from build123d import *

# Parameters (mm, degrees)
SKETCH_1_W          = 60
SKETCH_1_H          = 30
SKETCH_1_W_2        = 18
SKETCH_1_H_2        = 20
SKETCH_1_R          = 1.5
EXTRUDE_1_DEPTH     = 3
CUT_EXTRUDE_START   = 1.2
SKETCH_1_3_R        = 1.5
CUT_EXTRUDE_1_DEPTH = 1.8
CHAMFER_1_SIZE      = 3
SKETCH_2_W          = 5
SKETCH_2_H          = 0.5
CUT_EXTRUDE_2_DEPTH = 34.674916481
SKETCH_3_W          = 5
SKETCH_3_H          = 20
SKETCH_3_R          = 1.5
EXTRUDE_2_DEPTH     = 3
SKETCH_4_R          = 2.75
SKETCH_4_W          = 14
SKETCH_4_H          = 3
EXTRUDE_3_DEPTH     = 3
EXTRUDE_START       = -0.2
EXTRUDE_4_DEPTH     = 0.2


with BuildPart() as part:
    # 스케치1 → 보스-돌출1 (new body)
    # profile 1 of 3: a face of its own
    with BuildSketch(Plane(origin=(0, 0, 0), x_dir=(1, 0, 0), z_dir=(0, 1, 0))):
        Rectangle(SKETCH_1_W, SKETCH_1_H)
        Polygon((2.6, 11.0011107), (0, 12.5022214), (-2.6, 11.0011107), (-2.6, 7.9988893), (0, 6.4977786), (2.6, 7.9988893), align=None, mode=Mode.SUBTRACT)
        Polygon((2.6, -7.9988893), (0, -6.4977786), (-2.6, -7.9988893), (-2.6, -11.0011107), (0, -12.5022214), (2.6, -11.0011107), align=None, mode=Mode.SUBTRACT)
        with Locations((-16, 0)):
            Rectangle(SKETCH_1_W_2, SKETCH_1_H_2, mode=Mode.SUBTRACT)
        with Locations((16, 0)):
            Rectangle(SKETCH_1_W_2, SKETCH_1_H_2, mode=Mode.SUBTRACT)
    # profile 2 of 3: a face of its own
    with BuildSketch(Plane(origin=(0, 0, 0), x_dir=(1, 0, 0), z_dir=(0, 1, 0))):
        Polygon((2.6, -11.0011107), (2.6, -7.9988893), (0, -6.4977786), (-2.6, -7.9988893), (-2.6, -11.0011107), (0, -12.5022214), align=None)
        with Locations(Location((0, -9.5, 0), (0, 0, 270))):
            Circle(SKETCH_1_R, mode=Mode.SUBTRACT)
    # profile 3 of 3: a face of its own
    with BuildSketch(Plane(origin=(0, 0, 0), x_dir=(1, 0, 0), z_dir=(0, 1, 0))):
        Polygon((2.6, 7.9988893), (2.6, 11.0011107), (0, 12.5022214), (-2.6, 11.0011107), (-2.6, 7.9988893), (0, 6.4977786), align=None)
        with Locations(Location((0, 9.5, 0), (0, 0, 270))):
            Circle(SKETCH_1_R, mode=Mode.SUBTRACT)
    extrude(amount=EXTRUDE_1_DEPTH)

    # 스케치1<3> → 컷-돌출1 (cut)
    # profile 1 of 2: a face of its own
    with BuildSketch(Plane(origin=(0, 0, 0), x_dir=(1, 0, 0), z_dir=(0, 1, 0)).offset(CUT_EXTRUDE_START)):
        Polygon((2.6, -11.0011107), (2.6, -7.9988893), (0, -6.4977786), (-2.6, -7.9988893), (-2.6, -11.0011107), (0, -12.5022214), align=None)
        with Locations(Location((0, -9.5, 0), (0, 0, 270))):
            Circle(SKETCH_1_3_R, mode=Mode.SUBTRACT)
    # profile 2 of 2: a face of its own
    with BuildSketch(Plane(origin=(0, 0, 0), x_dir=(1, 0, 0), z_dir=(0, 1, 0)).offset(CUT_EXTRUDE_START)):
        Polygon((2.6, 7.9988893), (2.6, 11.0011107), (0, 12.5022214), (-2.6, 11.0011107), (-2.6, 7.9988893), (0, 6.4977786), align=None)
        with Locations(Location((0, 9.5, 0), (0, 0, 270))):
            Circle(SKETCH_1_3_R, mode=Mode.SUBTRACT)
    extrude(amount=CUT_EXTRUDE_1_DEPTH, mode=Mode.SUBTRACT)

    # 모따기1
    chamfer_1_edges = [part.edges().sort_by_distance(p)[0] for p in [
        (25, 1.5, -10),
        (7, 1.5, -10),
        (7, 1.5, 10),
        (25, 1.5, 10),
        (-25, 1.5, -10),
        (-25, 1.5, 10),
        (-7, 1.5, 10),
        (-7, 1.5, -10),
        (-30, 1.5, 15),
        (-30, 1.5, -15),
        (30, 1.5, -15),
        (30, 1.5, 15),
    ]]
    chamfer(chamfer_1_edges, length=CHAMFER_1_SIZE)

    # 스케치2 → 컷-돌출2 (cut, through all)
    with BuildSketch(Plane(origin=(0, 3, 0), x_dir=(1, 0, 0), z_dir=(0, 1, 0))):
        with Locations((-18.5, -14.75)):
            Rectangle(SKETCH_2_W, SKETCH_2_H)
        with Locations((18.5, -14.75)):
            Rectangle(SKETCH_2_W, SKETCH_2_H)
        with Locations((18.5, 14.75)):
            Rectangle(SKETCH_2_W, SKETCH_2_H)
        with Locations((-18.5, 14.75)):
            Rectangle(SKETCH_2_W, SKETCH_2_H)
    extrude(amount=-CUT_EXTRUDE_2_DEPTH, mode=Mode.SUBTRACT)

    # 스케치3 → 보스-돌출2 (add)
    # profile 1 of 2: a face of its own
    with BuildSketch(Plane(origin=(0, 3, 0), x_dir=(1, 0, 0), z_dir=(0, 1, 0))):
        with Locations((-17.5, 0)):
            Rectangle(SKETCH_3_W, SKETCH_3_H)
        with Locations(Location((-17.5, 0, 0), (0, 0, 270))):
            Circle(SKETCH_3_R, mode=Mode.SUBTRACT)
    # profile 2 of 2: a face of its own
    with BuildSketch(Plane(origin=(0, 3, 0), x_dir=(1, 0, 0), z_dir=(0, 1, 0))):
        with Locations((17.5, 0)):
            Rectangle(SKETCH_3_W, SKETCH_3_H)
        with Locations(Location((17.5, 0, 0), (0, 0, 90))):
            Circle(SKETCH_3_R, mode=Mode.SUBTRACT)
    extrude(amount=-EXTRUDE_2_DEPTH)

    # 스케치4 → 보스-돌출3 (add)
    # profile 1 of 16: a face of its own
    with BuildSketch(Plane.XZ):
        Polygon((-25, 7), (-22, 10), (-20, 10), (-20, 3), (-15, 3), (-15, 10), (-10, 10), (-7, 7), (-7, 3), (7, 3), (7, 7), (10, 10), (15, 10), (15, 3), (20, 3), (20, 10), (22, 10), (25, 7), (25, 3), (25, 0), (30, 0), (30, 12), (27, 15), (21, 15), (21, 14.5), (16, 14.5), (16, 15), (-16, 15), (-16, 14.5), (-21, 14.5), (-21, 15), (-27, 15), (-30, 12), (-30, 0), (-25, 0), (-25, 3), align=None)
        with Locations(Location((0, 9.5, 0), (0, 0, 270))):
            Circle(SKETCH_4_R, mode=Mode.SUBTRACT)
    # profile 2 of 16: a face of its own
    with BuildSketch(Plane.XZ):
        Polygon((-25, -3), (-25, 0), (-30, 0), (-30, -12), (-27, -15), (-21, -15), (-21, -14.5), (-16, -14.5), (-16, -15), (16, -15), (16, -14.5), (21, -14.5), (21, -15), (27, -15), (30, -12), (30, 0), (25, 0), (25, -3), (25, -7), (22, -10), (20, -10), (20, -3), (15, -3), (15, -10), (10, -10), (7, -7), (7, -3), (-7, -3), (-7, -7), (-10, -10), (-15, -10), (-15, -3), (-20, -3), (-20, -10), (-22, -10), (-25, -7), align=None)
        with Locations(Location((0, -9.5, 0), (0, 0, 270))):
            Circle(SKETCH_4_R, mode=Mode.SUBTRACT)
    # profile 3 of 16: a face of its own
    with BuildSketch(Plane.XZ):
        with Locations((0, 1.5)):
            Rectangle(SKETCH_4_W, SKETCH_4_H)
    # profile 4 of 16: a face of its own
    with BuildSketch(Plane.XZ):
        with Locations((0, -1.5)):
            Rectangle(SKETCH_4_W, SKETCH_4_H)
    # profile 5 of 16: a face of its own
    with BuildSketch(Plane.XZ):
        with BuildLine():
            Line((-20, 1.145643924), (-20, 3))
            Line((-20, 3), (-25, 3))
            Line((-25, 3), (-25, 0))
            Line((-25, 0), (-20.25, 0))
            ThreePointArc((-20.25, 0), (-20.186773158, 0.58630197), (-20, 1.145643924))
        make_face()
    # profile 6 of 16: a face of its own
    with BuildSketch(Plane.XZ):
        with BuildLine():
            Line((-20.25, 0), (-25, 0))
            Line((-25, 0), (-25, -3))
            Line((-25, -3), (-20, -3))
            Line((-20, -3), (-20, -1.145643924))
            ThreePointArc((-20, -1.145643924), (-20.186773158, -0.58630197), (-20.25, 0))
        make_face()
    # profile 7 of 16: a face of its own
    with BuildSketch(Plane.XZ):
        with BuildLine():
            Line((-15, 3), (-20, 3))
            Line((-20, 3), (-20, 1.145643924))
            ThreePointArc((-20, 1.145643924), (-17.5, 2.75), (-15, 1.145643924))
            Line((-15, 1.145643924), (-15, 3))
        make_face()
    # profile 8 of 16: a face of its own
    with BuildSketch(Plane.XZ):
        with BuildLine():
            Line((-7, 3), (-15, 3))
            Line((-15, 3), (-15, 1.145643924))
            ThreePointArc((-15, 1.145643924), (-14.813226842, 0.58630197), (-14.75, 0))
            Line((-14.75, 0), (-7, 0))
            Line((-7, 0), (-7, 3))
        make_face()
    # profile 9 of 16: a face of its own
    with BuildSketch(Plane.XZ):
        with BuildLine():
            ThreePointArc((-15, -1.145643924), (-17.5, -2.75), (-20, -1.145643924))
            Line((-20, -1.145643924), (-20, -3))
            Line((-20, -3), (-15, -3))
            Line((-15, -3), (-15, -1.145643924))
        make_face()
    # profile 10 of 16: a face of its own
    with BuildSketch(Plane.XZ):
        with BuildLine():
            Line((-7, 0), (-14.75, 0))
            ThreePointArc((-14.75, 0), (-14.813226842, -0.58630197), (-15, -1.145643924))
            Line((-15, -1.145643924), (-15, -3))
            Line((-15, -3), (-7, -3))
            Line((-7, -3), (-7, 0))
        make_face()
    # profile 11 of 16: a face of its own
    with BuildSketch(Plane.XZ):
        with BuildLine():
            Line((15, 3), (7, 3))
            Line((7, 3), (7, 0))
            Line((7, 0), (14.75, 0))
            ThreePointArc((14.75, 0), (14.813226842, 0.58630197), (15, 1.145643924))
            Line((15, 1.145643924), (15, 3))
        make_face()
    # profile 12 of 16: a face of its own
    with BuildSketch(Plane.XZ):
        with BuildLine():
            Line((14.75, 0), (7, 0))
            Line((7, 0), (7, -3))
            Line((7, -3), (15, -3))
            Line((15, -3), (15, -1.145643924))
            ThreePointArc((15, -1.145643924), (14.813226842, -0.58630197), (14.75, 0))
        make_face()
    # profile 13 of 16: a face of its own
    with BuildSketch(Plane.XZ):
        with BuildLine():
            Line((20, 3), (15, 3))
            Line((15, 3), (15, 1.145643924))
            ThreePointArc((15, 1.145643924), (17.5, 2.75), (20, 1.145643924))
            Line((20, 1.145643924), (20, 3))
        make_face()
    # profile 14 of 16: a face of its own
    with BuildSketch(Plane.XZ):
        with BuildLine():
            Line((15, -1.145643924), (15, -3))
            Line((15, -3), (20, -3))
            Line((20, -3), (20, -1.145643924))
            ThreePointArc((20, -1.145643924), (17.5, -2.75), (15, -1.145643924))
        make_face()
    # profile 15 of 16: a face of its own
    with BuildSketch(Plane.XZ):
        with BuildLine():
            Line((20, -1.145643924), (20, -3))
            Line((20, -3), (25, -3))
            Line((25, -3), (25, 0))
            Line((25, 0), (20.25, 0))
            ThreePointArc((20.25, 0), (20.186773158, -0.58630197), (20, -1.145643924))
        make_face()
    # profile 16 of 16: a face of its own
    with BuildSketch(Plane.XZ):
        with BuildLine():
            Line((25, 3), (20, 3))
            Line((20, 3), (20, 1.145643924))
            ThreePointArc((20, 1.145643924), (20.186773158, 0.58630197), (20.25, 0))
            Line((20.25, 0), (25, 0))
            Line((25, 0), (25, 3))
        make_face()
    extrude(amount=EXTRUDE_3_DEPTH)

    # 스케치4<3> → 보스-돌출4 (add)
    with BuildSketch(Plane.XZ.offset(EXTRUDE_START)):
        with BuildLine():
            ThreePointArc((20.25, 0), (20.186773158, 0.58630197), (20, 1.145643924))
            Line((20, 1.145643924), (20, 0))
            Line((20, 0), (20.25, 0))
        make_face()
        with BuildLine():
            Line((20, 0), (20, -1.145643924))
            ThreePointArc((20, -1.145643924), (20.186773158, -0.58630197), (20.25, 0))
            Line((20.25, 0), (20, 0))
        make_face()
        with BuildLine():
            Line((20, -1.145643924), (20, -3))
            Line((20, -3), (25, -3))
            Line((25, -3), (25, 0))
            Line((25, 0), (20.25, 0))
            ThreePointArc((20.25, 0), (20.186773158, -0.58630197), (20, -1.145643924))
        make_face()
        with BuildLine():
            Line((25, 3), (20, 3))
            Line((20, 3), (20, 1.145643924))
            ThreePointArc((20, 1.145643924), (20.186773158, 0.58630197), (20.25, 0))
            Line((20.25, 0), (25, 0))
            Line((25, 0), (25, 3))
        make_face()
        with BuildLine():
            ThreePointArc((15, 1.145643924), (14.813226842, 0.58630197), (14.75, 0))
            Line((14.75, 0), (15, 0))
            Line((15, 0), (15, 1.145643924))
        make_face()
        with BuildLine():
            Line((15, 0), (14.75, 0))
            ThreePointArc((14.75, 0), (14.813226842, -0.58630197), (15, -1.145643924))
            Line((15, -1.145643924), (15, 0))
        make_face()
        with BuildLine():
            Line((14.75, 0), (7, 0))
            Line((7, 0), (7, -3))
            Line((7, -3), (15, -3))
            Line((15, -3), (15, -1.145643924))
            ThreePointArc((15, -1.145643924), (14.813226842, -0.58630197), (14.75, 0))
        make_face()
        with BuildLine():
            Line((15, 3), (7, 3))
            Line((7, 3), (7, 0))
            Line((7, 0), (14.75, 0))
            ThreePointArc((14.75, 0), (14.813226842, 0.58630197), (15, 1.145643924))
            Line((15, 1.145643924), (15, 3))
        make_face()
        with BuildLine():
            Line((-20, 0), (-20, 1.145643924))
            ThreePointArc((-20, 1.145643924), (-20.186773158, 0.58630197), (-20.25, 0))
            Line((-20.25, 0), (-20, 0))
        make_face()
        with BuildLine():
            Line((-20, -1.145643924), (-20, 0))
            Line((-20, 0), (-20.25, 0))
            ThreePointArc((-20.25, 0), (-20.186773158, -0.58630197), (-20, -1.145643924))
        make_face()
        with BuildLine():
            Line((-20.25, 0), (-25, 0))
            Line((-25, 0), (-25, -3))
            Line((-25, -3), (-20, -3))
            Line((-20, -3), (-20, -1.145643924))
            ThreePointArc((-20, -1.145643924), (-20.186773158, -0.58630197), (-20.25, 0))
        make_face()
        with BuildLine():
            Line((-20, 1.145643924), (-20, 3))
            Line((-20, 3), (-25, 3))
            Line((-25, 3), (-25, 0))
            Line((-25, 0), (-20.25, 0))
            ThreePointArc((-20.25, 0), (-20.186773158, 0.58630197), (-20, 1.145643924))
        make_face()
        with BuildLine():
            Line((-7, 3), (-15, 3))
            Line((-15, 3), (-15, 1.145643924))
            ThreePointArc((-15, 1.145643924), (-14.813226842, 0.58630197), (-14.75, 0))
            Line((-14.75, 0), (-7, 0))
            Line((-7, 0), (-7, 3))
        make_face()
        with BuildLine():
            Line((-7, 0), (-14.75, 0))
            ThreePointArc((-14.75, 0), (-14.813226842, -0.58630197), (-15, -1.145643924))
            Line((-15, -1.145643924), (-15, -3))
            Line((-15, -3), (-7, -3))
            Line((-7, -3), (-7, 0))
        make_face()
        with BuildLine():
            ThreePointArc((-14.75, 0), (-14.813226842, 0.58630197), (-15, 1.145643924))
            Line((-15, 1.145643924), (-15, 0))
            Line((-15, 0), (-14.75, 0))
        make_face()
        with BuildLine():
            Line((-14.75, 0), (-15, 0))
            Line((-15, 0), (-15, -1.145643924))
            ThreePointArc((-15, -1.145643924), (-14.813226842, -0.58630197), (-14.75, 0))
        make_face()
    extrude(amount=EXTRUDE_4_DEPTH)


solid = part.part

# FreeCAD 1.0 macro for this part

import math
import FreeCAD as App
import Part
import Sketcher

V = App.Vector
Q = App.Units.Quantity


def edges_at(feature, points):
    """Names of the edges that pass closest to the given points."""
    edges = feature.Shape.Edges
    near = lambda p: min(range(len(edges)), key=lambda i: edges[i].distToShape(Part.Vertex(*p))[0])
    return sorted({f"Edge{near(p) + 1}" for p in points})

doc = App.newDocument("Part")
params = doc.addObject("Spreadsheet::Sheet", "Params")
for row, (alias, value) in enumerate([
    ("sketch1_diameter", "3 mm"),
    ("sketch1_width", "60 mm"),
    ("sketch1_width2", "18 mm"),
    ("sketch1_height", "30 mm"),
    ("sketch1_height2", "20 mm"),
    ("pad1_length", "3 mm"),
    ("sketch2_diameter", "3 mm"),
    ("pocket1_length", "1.8 mm"),
    ("chamfer_size", "3 mm"),
    ("sketch3_width", "5 mm"),
    ("sketch3_height", "0.5 mm"),
    ("sketch4_diameter", "3 mm"),
    ("sketch4_width", "5 mm"),
    ("sketch4_height", "20 mm"),
    ("pad2_length", "3 mm"),
    ("sketch5_diameter", "5.5 mm"),
    ("sketch5_width", "6 mm"),
    ("sketch5_width2", "5 mm"),
    ("sketch5_width3", "32 mm"),
    ("sketch5_width4", "2 mm"),
    ("pad3_length", "3 mm"),
    ("sketch6_width", "5 mm"),
    ("sketch6_width2", "8 mm"),
    ("sketch6_height", "6 mm"),
    ("pad4_length", "0.2 mm"),
], start=1):
    params.set(f"A{row}", alias)
    params.set(f"B{row}", "=" + value)
    params.setAlias(f"B{row}", alias)

body = doc.addObject("PartDesign::Body", "Body")

sketch1 = body.newObject("Sketcher::SketchObject", "Sketch")
sketch1.AttachmentSupport = (doc.getObject("XZ_Plane"), [""])
sketch1.MapMode = "FlatFace"
sketch1.addGeometry([
    Part.LineSegment(V(-30, -15, 0), V(-30, 15, 0)),
    Part.LineSegment(V(-30, 15, 0), V(30, 15, 0)),
    Part.LineSegment(V(30, 15, 0), V(30, -15, 0)),
    Part.LineSegment(V(30, -15, 0), V(-30, -15, 0)),
    Part.LineSegment(V(-7, 10, 0), V(-25, 10, 0)),
    Part.LineSegment(V(-25, 10, 0), V(-25, -10, 0)),
    Part.LineSegment(V(-25, -10, 0), V(-7, -10, 0)),
    Part.LineSegment(V(-7, -10, 0), V(-7, 10, 0)),
    Part.LineSegment(V(25, 10, 0), V(7, 10, 0)),
    Part.LineSegment(V(7, 10, 0), V(7, -10, 0)),
    Part.LineSegment(V(7, -10, 0), V(25, -10, 0)),
    Part.LineSegment(V(25, -10, 0), V(25, 10, 0)),
    Part.Circle(V(0, 9.5, 0), V(0, 0, 1), 1.5),
    Part.Circle(V(0, -9.5, 0), V(0, 0, 1), 1.5),
], False)
sketch1.addConstraint([
    Sketcher.Constraint("Coincident", 0, 2, 1, 1),
    Sketcher.Constraint("Coincident", 1, 2, 2, 1),
    Sketcher.Constraint("Coincident", 2, 2, 3, 1),
    Sketcher.Constraint("Coincident", 3, 2, 0, 1),
    Sketcher.Constraint("Coincident", 4, 2, 5, 1),
    Sketcher.Constraint("Coincident", 5, 2, 6, 1),
    Sketcher.Constraint("Coincident", 6, 2, 7, 1),
    Sketcher.Constraint("Coincident", 7, 2, 4, 1),
    Sketcher.Constraint("Coincident", 8, 2, 9, 1),
    Sketcher.Constraint("Coincident", 9, 2, 10, 1),
    Sketcher.Constraint("Coincident", 10, 2, 11, 1),
    Sketcher.Constraint("Coincident", 11, 2, 8, 1),
    Sketcher.Constraint("Vertical", 0),
    Sketcher.Constraint("Horizontal", 1),
    Sketcher.Constraint("Vertical", 2),
    Sketcher.Constraint("Horizontal", 3),
    Sketcher.Constraint("Horizontal", 4),
    Sketcher.Constraint("Vertical", 5),
    Sketcher.Constraint("Horizontal", 6),
    Sketcher.Constraint("Vertical", 7),
    Sketcher.Constraint("Horizontal", 8),
    Sketcher.Constraint("Vertical", 9),
    Sketcher.Constraint("Horizontal", 10),
    Sketcher.Constraint("Vertical", 11),
    Sketcher.Constraint("Equal", 12, 13),
    Sketcher.Constraint("Symmetric", 12, 3, 13, 3, -1, 1),
    Sketcher.Constraint("Symmetric", 0, 2, 2, 2, -1, 1),
    Sketcher.Constraint("Symmetric", 6, 2, 8, 2, -1, 1),
    Sketcher.Constraint("Symmetric", 4, 2, 10, 2, -1, 1),
    Sketcher.Constraint("PointOnObject", 12, 3, -2),
    Sketcher.Constraint("Horizontal", 7, 2, 8, 2),
    Sketcher.Constraint("Diameter", 12, Q("3 mm")),
    Sketcher.Constraint("DistanceX", 1, 1, 1, 2, Q("60 mm")),
    Sketcher.Constraint("DistanceX", 4, 2, 4, 1, Q("18 mm")),
    Sketcher.Constraint("DistanceY", 0, 1, 0, 2, Q("30 mm")),
    Sketcher.Constraint("DistanceY", 5, 2, 5, 1, Q("20 mm")),
    Sketcher.Constraint("DistanceX", 4, 2, -1, 1, Q("25 mm")),
    Sketcher.Constraint("DistanceY", 13, 3, 12, 3, Q("19 mm")),
])
sketch1.setExpression("Constraints[31]", "Params.sketch1_diameter")
sketch1.setExpression("Constraints[32]", "Params.sketch1_width")
sketch1.setExpression("Constraints[33]", "Params.sketch1_width2")
sketch1.setExpression("Constraints[34]", "Params.sketch1_height")
sketch1.setExpression("Constraints[35]", "Params.sketch1_height2")
pad1 = body.newObject("PartDesign::Pad", "Pad")
pad1.Profile = sketch1
pad1.setExpression("Length", "Params.pad1_length")
pad1.Reversed = True

sketch2 = body.newObject("Sketcher::SketchObject", "Sketch001")
sketch2.AttachmentSupport = (doc.getObject("XZ_Plane"), [""])
sketch2.MapMode = "FlatFace"
sketch2.AttachmentOffset = App.Placement(V(0, 0, -1.2), App.Rotation())
sketch2.addGeometry([
    Part.LineSegment(V(2.6, 11, 0), V(2.6, 8, 0)),
    Part.LineSegment(V(2.6, 8, 0), V(0, 6.5, 0)),
    Part.LineSegment(V(0, 6.5, 0), V(-2.6, 8, 0)),
    Part.LineSegment(V(-2.6, 8, 0), V(-2.6, 11, 0)),
    Part.LineSegment(V(-2.6, 11, 0), V(0, 12.5, 0)),
    Part.LineSegment(V(0, 12.5, 0), V(2.6, 11, 0)),
    Part.Circle(V(0, 9.5, 0), V(0, 0, 1), 1.5),
    Part.LineSegment(V(2.6, -8, 0), V(2.6, -11, 0)),
    Part.LineSegment(V(2.6, -11, 0), V(0, -12.5, 0)),
    Part.LineSegment(V(0, -12.5, 0), V(-2.6, -11, 0)),
    Part.LineSegment(V(-2.6, -11, 0), V(-2.6, -8, 0)),
    Part.LineSegment(V(-2.6, -8, 0), V(0, -6.5, 0)),
    Part.LineSegment(V(0, -6.5, 0), V(2.6, -8, 0)),
    Part.Circle(V(0, -9.5, 0), V(0, 0, 1), 1.5),
], False)
sketch2.addConstraint([
    Sketcher.Constraint("Coincident", 0, 2, 1, 1),
    Sketcher.Constraint("Coincident", 1, 2, 2, 1),
    Sketcher.Constraint("Coincident", 2, 2, 3, 1),
    Sketcher.Constraint("Coincident", 3, 2, 4, 1),
    Sketcher.Constraint("Coincident", 4, 2, 5, 1),
    Sketcher.Constraint("Coincident", 5, 2, 0, 1),
    Sketcher.Constraint("Coincident", 7, 2, 8, 1),
    Sketcher.Constraint("Coincident", 8, 2, 9, 1),
    Sketcher.Constraint("Coincident", 9, 2, 10, 1),
    Sketcher.Constraint("Coincident", 10, 2, 11, 1),
    Sketcher.Constraint("Coincident", 11, 2, 12, 1),
    Sketcher.Constraint("Coincident", 12, 2, 7, 1),
    Sketcher.Constraint("Vertical", 0),
    Sketcher.Constraint("Vertical", 3),
    Sketcher.Constraint("Vertical", 7),
    Sketcher.Constraint("Vertical", 10),
    Sketcher.Constraint("Equal", 6, 13),
    Sketcher.Constraint("Symmetric", 6, 3, 13, 3, -1, 1),
    Sketcher.Constraint("Symmetric", 3, 2, 7, 2, -1, 1),
    Sketcher.Constraint("Symmetric", 4, 2, 8, 2, -1, 1),
    Sketcher.Constraint("Symmetric", 5, 2, 9, 2, -1, 1),
    Sketcher.Constraint("Symmetric", 1, 2, 11, 2, -1, 1),
    Sketcher.Constraint("Symmetric", 0, 2, 2, 2, -2),
    Sketcher.Constraint("PointOnObject", 6, 3, -2),
    Sketcher.Constraint("PointOnObject", 1, 2, -2),
    Sketcher.Constraint("PointOnObject", 4, 2, -2),
    Sketcher.Constraint("Parallel", 1, 4),
    Sketcher.Constraint("Parallel", 2, 5),
    Sketcher.Constraint("Parallel", 8, 11),
    Sketcher.Constraint("Parallel", 9, 12),
    Sketcher.Constraint("Diameter", 6, Q("3 mm")),
    Sketcher.Constraint("Angle", 1, Q("-150 deg")),
    Sketcher.Constraint("DistanceY", 13, 3, 6, 3, Q("19 mm")),
    Sketcher.Constraint("DistanceY", 7, 2, 0, 2, Q("19 mm")),
    Sketcher.Constraint("DistanceX", -1, 1, 0, 2, Q("2.6 mm")),
    Sketcher.Constraint("DistanceY", 0, 2, 0, 1, Q("3.002221 mm")),
])
sketch2.setExpression("Constraints[30]", "Params.sketch2_diameter")
pocket1 = body.newObject("PartDesign::Pocket", "Pocket")
pocket1.Profile = sketch2
pocket1.setExpression("Length", "Params.pocket1_length")
doc.recompute()

chamfer = body.newObject("PartDesign::Chamfer", "Chamfer")
chamfer.Base = (pocket1, edges_at(pocket1, [
    (25, 1.5, -10),
    (7, 1.5, -10),
    (7, 1.5, 10),
    (25, 1.5, 10),
    (-25, 1.5, -10),
    (-25, 1.5, 10),
    (-7, 1.5, 10),
    (-7, 1.5, -10),
    (-30, 1.5, 15),
    (-30, 1.5, -15),
    (30, 1.5, -15),
    (30, 1.5, 15),
]))
chamfer.setExpression("Size", "Params.chamfer_size")

sketch3 = body.newObject("Sketcher::SketchObject", "Sketch002")
sketch3.AttachmentSupport = (doc.getObject("XZ_Plane"), [""])
sketch3.MapMode = "FlatFace"
sketch3.AttachmentOffset = App.Placement(V(0, 0, -3), App.Rotation())
sketch3.addGeometry([
    Part.LineSegment(V(-21, 14.5, 0), V(-21, 15, 0)),
    Part.LineSegment(V(-21, 15, 0), V(-16, 15, 0)),
    Part.LineSegment(V(-16, 15, 0), V(-16, 14.5, 0)),
    Part.LineSegment(V(-16, 14.5, 0), V(-21, 14.5, 0)),
    Part.LineSegment(V(16, 14.5, 0), V(16, 15, 0)),
    Part.LineSegment(V(16, 15, 0), V(21, 15, 0)),
    Part.LineSegment(V(21, 15, 0), V(21, 14.5, 0)),
    Part.LineSegment(V(21, 14.5, 0), V(16, 14.5, 0)),
    Part.LineSegment(V(16, -15, 0), V(16, -14.5, 0)),
    Part.LineSegment(V(16, -14.5, 0), V(21, -14.5, 0)),
    Part.LineSegment(V(21, -14.5, 0), V(21, -15, 0)),
    Part.LineSegment(V(21, -15, 0), V(16, -15, 0)),
    Part.LineSegment(V(-21, -15, 0), V(-21, -14.5, 0)),
    Part.LineSegment(V(-21, -14.5, 0), V(-16, -14.5, 0)),
    Part.LineSegment(V(-16, -14.5, 0), V(-16, -15, 0)),
    Part.LineSegment(V(-16, -15, 0), V(-21, -15, 0)),
], False)
sketch3.addConstraint([
    Sketcher.Constraint("Coincident", 0, 2, 1, 1),
    Sketcher.Constraint("Coincident", 1, 2, 2, 1),
    Sketcher.Constraint("Coincident", 2, 2, 3, 1),
    Sketcher.Constraint("Coincident", 3, 2, 0, 1),
    Sketcher.Constraint("Coincident", 4, 2, 5, 1),
    Sketcher.Constraint("Coincident", 5, 2, 6, 1),
    Sketcher.Constraint("Coincident", 6, 2, 7, 1),
    Sketcher.Constraint("Coincident", 7, 2, 4, 1),
    Sketcher.Constraint("Coincident", 8, 2, 9, 1),
    Sketcher.Constraint("Coincident", 9, 2, 10, 1),
    Sketcher.Constraint("Coincident", 10, 2, 11, 1),
    Sketcher.Constraint("Coincident", 11, 2, 8, 1),
    Sketcher.Constraint("Coincident", 12, 2, 13, 1),
    Sketcher.Constraint("Coincident", 13, 2, 14, 1),
    Sketcher.Constraint("Coincident", 14, 2, 15, 1),
    Sketcher.Constraint("Coincident", 15, 2, 12, 1),
    Sketcher.Constraint("Vertical", 0),
    Sketcher.Constraint("Horizontal", 1),
    Sketcher.Constraint("Vertical", 2),
    Sketcher.Constraint("Horizontal", 3),
    Sketcher.Constraint("Vertical", 4),
    Sketcher.Constraint("Horizontal", 5),
    Sketcher.Constraint("Vertical", 6),
    Sketcher.Constraint("Horizontal", 7),
    Sketcher.Constraint("Vertical", 8),
    Sketcher.Constraint("Horizontal", 9),
    Sketcher.Constraint("Vertical", 10),
    Sketcher.Constraint("Horizontal", 11),
    Sketcher.Constraint("Vertical", 12),
    Sketcher.Constraint("Horizontal", 13),
    Sketcher.Constraint("Vertical", 14),
    Sketcher.Constraint("Horizontal", 15),
    Sketcher.Constraint("Symmetric", 2, 2, 8, 2, -1, 1),
    Sketcher.Constraint("Symmetric", 0, 2, 10, 2, -1, 1),
    Sketcher.Constraint("Symmetric", 6, 2, 12, 2, -1, 1),
    Sketcher.Constraint("Symmetric", 4, 2, 14, 2, -1, 1),
    Sketcher.Constraint("Symmetric", 1, 2, 4, 2, -2),
    Sketcher.Constraint("Symmetric", 3, 2, 6, 2, -2),
    Sketcher.Constraint("DistanceX", 1, 1, 1, 2, Q("5 mm")),
    Sketcher.Constraint("DistanceY", 0, 1, 0, 2, Q("0.5 mm")),
    Sketcher.Constraint("DistanceX", 0, 2, -1, 1, Q("21 mm")),
    Sketcher.Constraint("DistanceY", -1, 1, 0, 2, Q("15 mm")),
])
sketch3.setExpression("Constraints[38]", "Params.sketch3_width")
sketch3.setExpression("Constraints[39]", "Params.sketch3_height")
pocket2 = body.newObject("PartDesign::Pocket", "Pocket001")
pocket2.Profile = sketch3
pocket2.Type = "ThroughAll"
pocket2.Reversed = True

sketch4 = body.newObject("Sketcher::SketchObject", "Sketch003")
sketch4.AttachmentSupport = (doc.getObject("XZ_Plane"), [""])
sketch4.MapMode = "FlatFace"
sketch4.AttachmentOffset = App.Placement(V(0, 0, -3), App.Rotation())
sketch4.addGeometry([
    Part.LineSegment(V(-20, -10, 0), V(-20, 10, 0)),
    Part.LineSegment(V(-20, 10, 0), V(-15, 10, 0)),
    Part.LineSegment(V(-15, 10, 0), V(-15, -10, 0)),
    Part.LineSegment(V(-15, -10, 0), V(-20, -10, 0)),
    Part.Circle(V(-17.5, 0, 0), V(0, 0, 1), 1.5),
    Part.LineSegment(V(15, -10, 0), V(15, 10, 0)),
    Part.LineSegment(V(15, 10, 0), V(20, 10, 0)),
    Part.LineSegment(V(20, 10, 0), V(20, -10, 0)),
    Part.LineSegment(V(20, -10, 0), V(15, -10, 0)),
    Part.Circle(V(17.5, 0, 0), V(0, 0, 1), 1.5),
], False)
sketch4.addConstraint([
    Sketcher.Constraint("Coincident", 0, 2, 1, 1),
    Sketcher.Constraint("Coincident", 1, 2, 2, 1),
    Sketcher.Constraint("Coincident", 2, 2, 3, 1),
    Sketcher.Constraint("Coincident", 3, 2, 0, 1),
    Sketcher.Constraint("Coincident", 5, 2, 6, 1),
    Sketcher.Constraint("Coincident", 6, 2, 7, 1),
    Sketcher.Constraint("Coincident", 7, 2, 8, 1),
    Sketcher.Constraint("Coincident", 8, 2, 5, 1),
    Sketcher.Constraint("Vertical", 0),
    Sketcher.Constraint("Horizontal", 1),
    Sketcher.Constraint("Vertical", 2),
    Sketcher.Constraint("Horizontal", 3),
    Sketcher.Constraint("Vertical", 5),
    Sketcher.Constraint("Horizontal", 6),
    Sketcher.Constraint("Vertical", 7),
    Sketcher.Constraint("Horizontal", 8),
    Sketcher.Constraint("Equal", 4, 9),
    Sketcher.Constraint("Symmetric", 4, 3, 9, 3, -1, 1),
    Sketcher.Constraint("Symmetric", 2, 2, 5, 2, -1, 1),
    Sketcher.Constraint("Symmetric", 0, 2, 7, 2, -1, 1),
    Sketcher.Constraint("PointOnObject", 4, 3, -1),
    Sketcher.Constraint("Horizontal", 1, 2, 5, 2),
    Sketcher.Constraint("Diameter", 4, Q("3 mm")),
    Sketcher.Constraint("DistanceX", 1, 1, 1, 2, Q("5 mm")),
    Sketcher.Constraint("DistanceY", 0, 1, 0, 2, Q("20 mm")),
    Sketcher.Constraint("DistanceX", 0, 2, -1, 1, Q("20 mm")),
    Sketcher.Constraint("DistanceX", 4, 3, 9, 3, Q("35 mm")),
])
sketch4.setExpression("Constraints[22]", "Params.sketch4_diameter")
sketch4.setExpression("Constraints[23]", "Params.sketch4_width")
sketch4.setExpression("Constraints[24]", "Params.sketch4_height")
pad2 = body.newObject("PartDesign::Pad", "Pad001")
pad2.Profile = sketch4
pad2.setExpression("Length", "Params.pad2_length")

sketch5 = body.newObject("Sketcher::SketchObject", "Sketch004")
sketch5.AttachmentSupport = (doc.getObject("XZ_Plane"), [""])
sketch5.MapMode = "FlatFace"
sketch5.addGeometry([
    Part.LineSegment(V(-30, 12, 0), V(-30, -12, 0)),
    Part.LineSegment(V(-30, -12, 0), V(-27, -15, 0)),
    Part.LineSegment(V(-27, -15, 0), V(-21, -15, 0)),
    Part.LineSegment(V(-21, -15, 0), V(-21, -14.5, 0)),
    Part.LineSegment(V(-21, -14.5, 0), V(-16, -14.5, 0)),
    Part.LineSegment(V(-16, -14.5, 0), V(-16, -15, 0)),
    Part.LineSegment(V(-16, -15, 0), V(16, -15, 0)),
    Part.LineSegment(V(16, -15, 0), V(16, -14.5, 0)),
    Part.LineSegment(V(16, -14.5, 0), V(21, -14.5, 0)),
    Part.LineSegment(V(21, -14.5, 0), V(21, -15, 0)),
    Part.LineSegment(V(21, -15, 0), V(27, -15, 0)),
    Part.LineSegment(V(27, -15, 0), V(30, -12, 0)),
    Part.LineSegment(V(30, -12, 0), V(30, 12, 0)),
    Part.LineSegment(V(30, 12, 0), V(27, 15, 0)),
    Part.LineSegment(V(27, 15, 0), V(21, 15, 0)),
    Part.LineSegment(V(21, 15, 0), V(21, 14.5, 0)),
    Part.LineSegment(V(21, 14.5, 0), V(16, 14.5, 0)),
    Part.LineSegment(V(16, 14.5, 0), V(16, 15, 0)),
    Part.LineSegment(V(16, 15, 0), V(-16, 15, 0)),
    Part.LineSegment(V(-16, 15, 0), V(-16, 14.5, 0)),
    Part.LineSegment(V(-16, 14.5, 0), V(-21, 14.5, 0)),
    Part.LineSegment(V(-21, 14.5, 0), V(-21, 15, 0)),
    Part.LineSegment(V(-21, 15, 0), V(-27, 15, 0)),
    Part.LineSegment(V(-27, 15, 0), V(-30, 12, 0)),
    Part.LineSegment(V(-25, 7, 0), V(-22, 10, 0)),
    Part.LineSegment(V(-22, 10, 0), V(-20, 10, 0)),
    Part.LineSegment(V(-20, 10, 0), V(-20, 3, 0)),
    Part.LineSegment(V(-20, 3, 0), V(-25, 3, 0)),
    Part.LineSegment(V(-25, 3, 0), V(-25, 7, 0)),
    Part.LineSegment(V(-15, 3, 0), V(-15, 10, 0)),
    Part.LineSegment(V(-15, 10, 0), V(-10, 10, 0)),
    Part.LineSegment(V(-10, 10, 0), V(-7, 7, 0)),
    Part.LineSegment(V(-7, 7, 0), V(-7, 3, 0)),
    Part.LineSegment(V(-7, 3, 0), V(-15, 3, 0)),
    Part.LineSegment(V(7, 3, 0), V(7, 7, 0)),
    Part.LineSegment(V(7, 7, 0), V(10, 10, 0)),
    Part.LineSegment(V(10, 10, 0), V(15, 10, 0)),
    Part.LineSegment(V(15, 10, 0), V(15, 3, 0)),
    Part.LineSegment(V(15, 3, 0), V(7, 3, 0)),
    Part.LineSegment(V(20, 3, 0), V(20, 10, 0)),
    Part.LineSegment(V(20, 10, 0), V(22, 10, 0)),
    Part.LineSegment(V(22, 10, 0), V(25, 7, 0)),
    Part.LineSegment(V(25, 7, 0), V(25, 3, 0)),
    Part.LineSegment(V(25, 3, 0), V(20, 3, 0)),
    Part.Circle(V(0, 9.5, 0), V(0, 0, 1), 2.8),
    Part.ArcOfCircle(Part.Circle(V(-17.5, 0, 0), V(0, 0, 1), 2.7), math.radians(155), math.radians(180)),
    Part.ArcOfCircle(Part.Circle(V(-17.5, 0, 0), V(0, 0, 1), 2.8), math.radians(25), math.radians(155)),
    Part.ArcOfCircle(Part.Circle(V(-17.5, 0, 0), V(0, 0, 1), 2.7), math.radians(0), math.radians(25)),
    Part.ArcOfCircle(Part.Circle(V(-17.5, 0, 0), V(0, 0, 1), 2.7), math.radians(-25), math.radians(0)),
    Part.ArcOfCircle(Part.Circle(V(-17.5, 0, 0), V(0, 0, 1), 2.8), math.radians(-155), math.radians(-25)),
    Part.ArcOfCircle(Part.Circle(V(-17.5, 0, 0), V(0, 0, 1), 2.7), math.radians(180), math.radians(205)),
    Part.Circle(V(0, -9.5, 0), V(0, 0, 1), 2.8),
    Part.LineSegment(V(-25, -7, 0), V(-25, -3, 0)),
    Part.LineSegment(V(-25, -3, 0), V(-20, -3, 0)),
    Part.LineSegment(V(-20, -3, 0), V(-20, -10, 0)),
    Part.LineSegment(V(-20, -10, 0), V(-22, -10, 0)),
    Part.LineSegment(V(-22, -10, 0), V(-25, -7, 0)),
    Part.LineSegment(V(-15, -10, 0), V(-15, -3, 0)),
    Part.LineSegment(V(-15, -3, 0), V(-7, -3, 0)),
    Part.LineSegment(V(-7, -3, 0), V(-7, -7, 0)),
    Part.LineSegment(V(-7, -7, 0), V(-10, -10, 0)),
    Part.LineSegment(V(-10, -10, 0), V(-15, -10, 0)),
    Part.LineSegment(V(7, -7, 0), V(7, -3, 0)),
    Part.LineSegment(V(7, -3, 0), V(15, -3, 0)),
    Part.LineSegment(V(15, -3, 0), V(15, -10, 0)),
    Part.LineSegment(V(15, -10, 0), V(10, -10, 0)),
    Part.LineSegment(V(10, -10, 0), V(7, -7, 0)),
    Part.LineSegment(V(22, -10, 0), V(20, -10, 0)),
    Part.LineSegment(V(20, -10, 0), V(20, -3, 0)),
    Part.LineSegment(V(20, -3, 0), V(25, -3, 0)),
    Part.LineSegment(V(25, -3, 0), V(25, -7, 0)),
    Part.LineSegment(V(25, -7, 0), V(22, -10, 0)),
    Part.ArcOfCircle(Part.Circle(V(17.5, 0, 0), V(0, 0, 1), 2.8), math.radians(25), math.radians(155)),
    Part.ArcOfCircle(Part.Circle(V(17.5, 0, 0), V(0, 0, 1), 2.7), math.radians(0), math.radians(25)),
    Part.ArcOfCircle(Part.Circle(V(17.5, 0, 0), V(0, 0, 1), 2.7), math.radians(-25), math.radians(0)),
    Part.ArcOfCircle(Part.Circle(V(17.5, 0, 0), V(0, 0, 1), 2.8), math.radians(-155), math.radians(-25)),
    Part.ArcOfCircle(Part.Circle(V(17.5, 0, 0), V(0, 0, 1), 2.7), math.radians(180), math.radians(205)),
    Part.ArcOfCircle(Part.Circle(V(17.5, 0, 0), V(0, 0, 1), 2.7), math.radians(155), math.radians(180)),
], False)
sketch5.addConstraint([
    Sketcher.Constraint("Coincident", 0, 2, 1, 1),
    Sketcher.Constraint("Coincident", 1, 2, 2, 1),
    Sketcher.Constraint("Coincident", 2, 2, 3, 1),
    Sketcher.Constraint("Coincident", 3, 2, 4, 1),
    Sketcher.Constraint("Coincident", 4, 2, 5, 1),
    Sketcher.Constraint("Coincident", 5, 2, 6, 1),
    Sketcher.Constraint("Coincident", 6, 2, 7, 1),
    Sketcher.Constraint("Coincident", 7, 2, 8, 1),
    Sketcher.Constraint("Coincident", 8, 2, 9, 1),
    Sketcher.Constraint("Coincident", 9, 2, 10, 1),
    Sketcher.Constraint("Coincident", 10, 2, 11, 1),
    Sketcher.Constraint("Coincident", 11, 2, 12, 1),
    Sketcher.Constraint("Coincident", 12, 2, 13, 1),
    Sketcher.Constraint("Coincident", 13, 2, 14, 1),
    Sketcher.Constraint("Coincident", 14, 2, 15, 1),
    Sketcher.Constraint("Coincident", 15, 2, 16, 1),
    Sketcher.Constraint("Coincident", 16, 2, 17, 1),
    Sketcher.Constraint("Coincident", 17, 2, 18, 1),
    Sketcher.Constraint("Coincident", 18, 2, 19, 1),
    Sketcher.Constraint("Coincident", 19, 2, 20, 1),
    Sketcher.Constraint("Coincident", 20, 2, 21, 1),
    Sketcher.Constraint("Coincident", 21, 2, 22, 1),
    Sketcher.Constraint("Coincident", 22, 2, 23, 1),
    Sketcher.Constraint("Coincident", 23, 2, 0, 1),
    Sketcher.Constraint("Coincident", 24, 2, 25, 1),
    Sketcher.Constraint("Coincident", 25, 2, 26, 1),
    Sketcher.Constraint("Coincident", 26, 2, 27, 1),
    Sketcher.Constraint("Coincident", 27, 2, 28, 1),
    Sketcher.Constraint("Coincident", 28, 2, 24, 1),
    Sketcher.Constraint("Coincident", 29, 2, 30, 1),
    Sketcher.Constraint("Coincident", 30, 2, 31, 1),
    Sketcher.Constraint("Coincident", 31, 2, 32, 1),
    Sketcher.Constraint("Coincident", 32, 2, 33, 1),
    Sketcher.Constraint("Coincident", 33, 2, 29, 1),
    Sketcher.Constraint("Coincident", 34, 2, 35, 1),
    Sketcher.Constraint("Coincident", 35, 2, 36, 1),
    Sketcher.Constraint("Coincident", 36, 2, 37, 1),
    Sketcher.Constraint("Coincident", 37, 2, 38, 1),
    Sketcher.Constraint("Coincident", 38, 2, 34, 1),
    Sketcher.Constraint("Coincident", 39, 2, 40, 1),
    Sketcher.Constraint("Coincident", 40, 2, 41, 1),
    Sketcher.Constraint("Coincident", 41, 2, 42, 1),
    Sketcher.Constraint("Coincident", 42, 2, 43, 1),
    Sketcher.Constraint("Coincident", 43, 2, 39, 1),
    Sketcher.Constraint("Tangent", 45, 1, 46, 2),
    Sketcher.Constraint("Tangent", 46, 1, 47, 2),
    Sketcher.Constraint("Tangent", 47, 1, 48, 2),
    Sketcher.Constraint("Tangent", 48, 1, 49, 2),
    Sketcher.Constraint("Tangent", 49, 1, 50, 2),
    Sketcher.Constraint("Tangent", 50, 1, 45, 2),
    Sketcher.Constraint("Coincident", 52, 2, 53, 1),
    Sketcher.Constraint("Coincident", 53, 2, 54, 1),
    Sketcher.Constraint("Coincident", 54, 2, 55, 1),
    Sketcher.Constraint("Coincident", 55, 2, 56, 1),
    Sketcher.Constraint("Coincident", 56, 2, 52, 1),
    Sketcher.Constraint("Coincident", 57, 2, 58, 1),
    Sketcher.Constraint("Coincident", 58, 2, 59, 1),
    Sketcher.Constraint("Coincident", 59, 2, 60, 1),
    Sketcher.Constraint("Coincident", 60, 2, 61, 1),
    Sketcher.Constraint("Coincident", 61, 2, 57, 1),
    Sketcher.Constraint("Coincident", 62, 2, 63, 1),
    Sketcher.Constraint("Coincident", 63, 2, 64, 1),
    Sketcher.Constraint("Coincident", 64, 2, 65, 1),
    Sketcher.Constraint("Coincident", 65, 2, 66, 1),
    Sketcher.Constraint("Coincident", 66, 2, 62, 1),
    Sketcher.Constraint("Coincident", 67, 2, 68, 1),
    Sketcher.Constraint("Coincident", 68, 2, 69, 1),
    Sketcher.Constraint("Coincident", 69, 2, 70, 1),
    Sketcher.Constraint("Coincident", 70, 2, 71, 1),
    Sketcher.Constraint("Coincident", 71, 2, 67, 1),
    Sketcher.Constraint("Tangent", 72, 1, 73, 2),
    Sketcher.Constraint("Tangent", 73, 1, 74, 2),
    Sketcher.Constraint("Tangent", 74, 1, 75, 2),
    Sketcher.Constraint("Tangent", 75, 1, 76, 2),
    Sketcher.Constraint("Tangent", 76, 1, 77, 2),
    Sketcher.Constraint("Tangent", 77, 1, 72, 2),
    Sketcher.Constraint("Vertical", 0),
    Sketcher.Constraint("Horizontal", 2),
    Sketcher.Constraint("Vertical", 3),
    Sketcher.Constraint("Horizontal", 4),
    Sketcher.Constraint("Vertical", 5),
    Sketcher.Constraint("Horizontal", 6),
    Sketcher.Constraint("Vertical", 7),
    Sketcher.Constraint("Horizontal", 8),
    Sketcher.Constraint("Vertical", 9),
    Sketcher.Constraint("Horizontal", 10),
    Sketcher.Constraint("Vertical", 12),
    Sketcher.Constraint("Horizontal", 14),
    Sketcher.Constraint("Vertical", 15),
    Sketcher.Constraint("Horizontal", 16),
    Sketcher.Constraint("Vertical", 17),
    Sketcher.Constraint("Horizontal", 18),
    Sketcher.Constraint("Vertical", 19),
    Sketcher.Constraint("Horizontal", 20),
    Sketcher.Constraint("Vertical", 21),
    Sketcher.Constraint("Horizontal", 22),
    Sketcher.Constraint("Horizontal", 25),
    Sketcher.Constraint("Vertical", 26),
    Sketcher.Constraint("Horizontal", 27),
    Sketcher.Constraint("Vertical", 28),
    Sketcher.Constraint("Vertical", 29),
    Sketcher.Constraint("Horizontal", 30),
    Sketcher.Constraint("Vertical", 32),
    Sketcher.Constraint("Horizontal", 33),
    Sketcher.Constraint("Vertical", 34),
    Sketcher.Constraint("Horizontal", 36),
    Sketcher.Constraint("Vertical", 37),
    Sketcher.Constraint("Horizontal", 38),
    Sketcher.Constraint("Vertical", 39),
    Sketcher.Constraint("Horizontal", 40),
    Sketcher.Constraint("Vertical", 42),
    Sketcher.Constraint("Horizontal", 43),
    Sketcher.Constraint("Vertical", 52),
    Sketcher.Constraint("Horizontal", 53),
    Sketcher.Constraint("Vertical", 54),
    Sketcher.Constraint("Horizontal", 55),
    Sketcher.Constraint("Vertical", 57),
    Sketcher.Constraint("Horizontal", 58),
    Sketcher.Constraint("Vertical", 59),
    Sketcher.Constraint("Horizontal", 61),
    Sketcher.Constraint("Vertical", 62),
    Sketcher.Constraint("Horizontal", 63),
    Sketcher.Constraint("Vertical", 64),
    Sketcher.Constraint("Horizontal", 65),
    Sketcher.Constraint("Horizontal", 67),
    Sketcher.Constraint("Vertical", 68),
    Sketcher.Constraint("Horizontal", 69),
    Sketcher.Constraint("Vertical", 70),
    Sketcher.Constraint("Coincident", 47, 3, 45, 3),
    Sketcher.Constraint("Coincident", 74, 3, 72, 3),
    Sketcher.Constraint("Equal", 44, 45),
    Sketcher.Constraint("Equal", 47, 48),
    Sketcher.Constraint("Equal", 50, 51),
    Sketcher.Constraint("Equal", 51, 72),
    Sketcher.Constraint("Equal", 74, 75),
    Sketcher.Constraint("Symmetric", 44, 3, 51, 3, -1, 1),
    Sketcher.Constraint("Symmetric", 45, 3, 72, 3, -1, 1),
    Sketcher.Constraint("Symmetric", 0, 2, 12, 2, -1, 1),
    Sketcher.Constraint("Symmetric", 1, 2, 13, 2, -1, 1),
    Sketcher.Constraint("Symmetric", 3, 2, 15, 2, -1, 1),
    Sketcher.Constraint("Symmetric", 5, 2, 17, 2, -1, 1),
    Sketcher.Constraint("Symmetric", 7, 2, 19, 2, -1, 1),
    Sketcher.Constraint("Symmetric", 9, 2, 21, 2, -1, 1),
    Sketcher.Constraint("Symmetric", 42, 2, 52, 2, -1, 1),
    Sketcher.Constraint("Symmetric", 39, 2, 54, 2, -1, 1),
    Sketcher.Constraint("Symmetric", 37, 2, 57, 2, -1, 1),
    Sketcher.Constraint("Symmetric", 34, 2, 59, 2, -1, 1),
    Sketcher.Constraint("Symmetric", 35, 2, 60, 2, -1, 1),
    Sketcher.Constraint("Symmetric", 32, 2, 62, 2, -1, 1),
    Sketcher.Constraint("Symmetric", 29, 2, 64, 2, -1, 1),
    Sketcher.Constraint("Symmetric", 25, 2, 67, 2, -1, 1),
    Sketcher.Constraint("Symmetric", 27, 2, 69, 2, -1, 1),
    Sketcher.Constraint("Symmetric", 4, 2, 7, 2, -2),
    Sketcher.Constraint("Symmetric", 2, 2, 9, 2, -2),
    Sketcher.Constraint("Symmetric", 31, 2, 34, 2, -2),
    Sketcher.Constraint("Symmetric", 30, 2, 35, 2, -2),
    Sketcher.Constraint("Symmetric", 33, 2, 37, 2, -2),
    Sketcher.Constraint("Symmetric", 25, 2, 39, 2, -2),
    Sketcher.Constraint("Symmetric", 28, 2, 41, 2, -2),
    Sketcher.Constraint("Symmetric", 45, 1, 72, 1, -2),
    Sketcher.Constraint("PointOnObject", 44, 3, -2),
    Sketcher.Constraint("PointOnObject", 47, 1, -1),
    Sketcher.Constraint("PointOnObject", 50, 1, -1),
    Sketcher.Constraint("PointOnObject", 73, 1, -1),
    Sketcher.Constraint("PointOnObject", 76, 1, -1),
    Sketcher.Constraint("Perpendicular", 1, 11),
    Sketcher.Constraint("Perpendicular", 13, 23),
    Sketcher.Constraint("Parallel", 23, 24),
    Sketcher.Constraint("Perpendicular", 24, 31),
    Sketcher.Constraint("Perpendicular", 31, 35),
    Sketcher.Constraint("Perpendicular", 35, 41),
    Sketcher.Constraint("Parallel", 41, 56),
    Sketcher.Constraint("Perpendicular", 60, 66),
    Sketcher.Constraint("Perpendicular", 66, 71),
    Sketcher.Constraint("Horizontal", 2, 2, 5, 2),
    Sketcher.Constraint("Horizontal", 0, 2, 11, 2),
    Sketcher.Constraint("Horizontal", 12, 2, 23, 2),
    Sketcher.Constraint("Horizontal", 25, 2, 29, 2),
    Sketcher.Constraint("Horizontal", 28, 2, 31, 2),
    Sketcher.Constraint("Horizontal", 27, 2, 32, 2),
    Sketcher.Constraint("Horizontal", 38, 2, 42, 2),
    Sketcher.Constraint("Horizontal", 45, 1, 46, 1),
    Sketcher.Constraint("Horizontal", 48, 1, 49, 1),
    Sketcher.Constraint("Horizontal", 56, 2, 59, 2),
    Sketcher.Constraint("Horizontal", 59, 2, 66, 2),
    Sketcher.Constraint("Horizontal", 66, 2, 70, 2),
    Sketcher.Constraint("Horizontal", 49, 1, 74, 1),
    Sketcher.Constraint("Horizontal", 74, 1, 75, 1),
    Sketcher.Constraint("Horizontal", 72, 1, 77, 1),
    Sketcher.Constraint("Vertical", 26, 2, 45, 1),
    Sketcher.Constraint("Vertical", 33, 2, 46, 1),
    Sketcher.Constraint("Vertical", 46, 1, 48, 1),
    Sketcher.Constraint("Equal", 20, 27),
    Sketcher.Constraint("Equal", 27, 30),
    Sketcher.Constraint("Equal", 23, 24),
    Sketcher.Constraint("Diameter", 44, Q("5.5 mm")),
    Sketcher.Constraint("DistanceX", 2, 1, 2, 2, Q("6 mm")),
    Sketcher.Constraint("DistanceX", 4, 1, 4, 2, Q("5 mm")),
    Sketcher.Constraint("DistanceX", 6, 1, 6, 2, Q("32 mm")),
    Sketcher.Constraint("DistanceX", 25, 1, 25, 2, Q("2 mm")),
    Sketcher.Constraint("DistanceY", 0, 2, 0, 1, Q("24 mm")),
    Sketcher.Constraint("DistanceY", 26, 2, 26, 1, Q("7 mm")),
    Sketcher.Constraint("DistanceY", 3, 1, 3, 2, Q("0.5 mm")),
    Sketcher.Constraint("DistanceX", 24, 2, -1, 1, Q("22 mm")),
    Sketcher.Constraint("DistanceY", -1, 1, 24, 2, Q("10 mm")),
    Sketcher.Constraint("DistanceX", 29, 2, -1, 1, Q("15 mm")),
    Sketcher.Constraint("DistanceY", -1, 1, 44, 3, Q("9.5 mm")),
])
sketch5.setExpression("Constraints[195]", "Params.sketch5_diameter")
sketch5.setExpression("Constraints[196]", "Params.sketch5_width")
sketch5.setExpression("Constraints[197]", "Params.sketch5_width2")
sketch5.setExpression("Constraints[198]", "Params.sketch5_width3")
sketch5.setExpression("Constraints[199]", "Params.sketch5_width4")
pad3 = body.newObject("PartDesign::Pad", "Pad002")
pad3.Profile = sketch5
pad3.setExpression("Length", "Params.pad3_length")

sketch6 = body.newObject("Sketcher::SketchObject", "Sketch005")
sketch6.AttachmentSupport = (doc.getObject("XZ_Plane"), [""])
sketch6.MapMode = "FlatFace"
sketch6.AttachmentOffset = App.Placement(V(0, 0, -0.2), App.Rotation())
sketch6.addGeometry([
    Part.LineSegment(V(20, -3, 0), V(25, -3, 0)),
    Part.LineSegment(V(25, -3, 0), V(25, 3, 0)),
    Part.LineSegment(V(25, 3, 0), V(20, 3, 0)),
    Part.LineSegment(V(20, 3, 0), V(20, -3, 0)),
    Part.LineSegment(V(7, -3, 0), V(15, -3, 0)),
    Part.LineSegment(V(15, -3, 0), V(15, 3, 0)),
    Part.LineSegment(V(15, 3, 0), V(7, 3, 0)),
    Part.LineSegment(V(7, 3, 0), V(7, -3, 0)),
    Part.LineSegment(V(-25, -3, 0), V(-20, -3, 0)),
    Part.LineSegment(V(-20, -3, 0), V(-20, 3, 0)),
    Part.LineSegment(V(-20, 3, 0), V(-25, 3, 0)),
    Part.LineSegment(V(-25, 3, 0), V(-25, -3, 0)),
    Part.LineSegment(V(-15, -3, 0), V(-7, -3, 0)),
    Part.LineSegment(V(-7, -3, 0), V(-7, 3, 0)),
    Part.LineSegment(V(-7, 3, 0), V(-15, 3, 0)),
    Part.LineSegment(V(-15, 3, 0), V(-15, -3, 0)),
], False)
sketch6.addConstraint([
    Sketcher.Constraint("Coincident", 0, 2, 1, 1),
    Sketcher.Constraint("Coincident", 1, 2, 2, 1),
    Sketcher.Constraint("Coincident", 2, 2, 3, 1),
    Sketcher.Constraint("Coincident", 3, 2, 0, 1),
    Sketcher.Constraint("Coincident", 4, 2, 5, 1),
    Sketcher.Constraint("Coincident", 5, 2, 6, 1),
    Sketcher.Constraint("Coincident", 6, 2, 7, 1),
    Sketcher.Constraint("Coincident", 7, 2, 4, 1),
    Sketcher.Constraint("Coincident", 8, 2, 9, 1),
    Sketcher.Constraint("Coincident", 9, 2, 10, 1),
    Sketcher.Constraint("Coincident", 10, 2, 11, 1),
    Sketcher.Constraint("Coincident", 11, 2, 8, 1),
    Sketcher.Constraint("Coincident", 12, 2, 13, 1),
    Sketcher.Constraint("Coincident", 13, 2, 14, 1),
    Sketcher.Constraint("Coincident", 14, 2, 15, 1),
    Sketcher.Constraint("Coincident", 15, 2, 12, 1),
    Sketcher.Constraint("Horizontal", 0),
    Sketcher.Constraint("Vertical", 1),
    Sketcher.Constraint("Horizontal", 2),
    Sketcher.Constraint("Vertical", 3),
    Sketcher.Constraint("Horizontal", 4),
    Sketcher.Constraint("Vertical", 5),
    Sketcher.Constraint("Horizontal", 6),
    Sketcher.Constraint("Vertical", 7),
    Sketcher.Constraint("Horizontal", 8),
    Sketcher.Constraint("Vertical", 9),
    Sketcher.Constraint("Horizontal", 10),
    Sketcher.Constraint("Vertical", 11),
    Sketcher.Constraint("Horizontal", 12),
    Sketcher.Constraint("Vertical", 13),
    Sketcher.Constraint("Horizontal", 14),
    Sketcher.Constraint("Vertical", 15),
    Sketcher.Constraint("Symmetric", 2, 2, 8, 2, -1, 1),
    Sketcher.Constraint("Symmetric", 0, 2, 10, 2, -1, 1),
    Sketcher.Constraint("Symmetric", 6, 2, 12, 2, -1, 1),
    Sketcher.Constraint("Symmetric", 4, 2, 14, 2, -1, 1),
    Sketcher.Constraint("Horizontal", 3, 2, 4, 2),
    Sketcher.Constraint("Horizontal", 2, 2, 5, 2),
    Sketcher.Constraint("Horizontal", 7, 2, 8, 2),
    Sketcher.Constraint("DistanceX", 0, 1, 0, 2, Q("5 mm")),
    Sketcher.Constraint("DistanceX", 4, 1, 4, 2, Q("8 mm")),
    Sketcher.Constraint("DistanceY", 1, 1, 1, 2, Q("6 mm")),
    Sketcher.Constraint("DistanceX", -1, 1, 0, 2, Q("25 mm")),
    Sketcher.Constraint("DistanceX", -1, 1, 4, 2, Q("15 mm")),
])
sketch6.setExpression("Constraints[39]", "Params.sketch6_width")
sketch6.setExpression("Constraints[40]", "Params.sketch6_width2")
sketch6.setExpression("Constraints[41]", "Params.sketch6_height")
pad4 = body.newObject("PartDesign::Pad", "Pad003")
pad4.Profile = sketch6
pad4.setExpression("Length", "Params.pad4_length")

doc.recompute()
